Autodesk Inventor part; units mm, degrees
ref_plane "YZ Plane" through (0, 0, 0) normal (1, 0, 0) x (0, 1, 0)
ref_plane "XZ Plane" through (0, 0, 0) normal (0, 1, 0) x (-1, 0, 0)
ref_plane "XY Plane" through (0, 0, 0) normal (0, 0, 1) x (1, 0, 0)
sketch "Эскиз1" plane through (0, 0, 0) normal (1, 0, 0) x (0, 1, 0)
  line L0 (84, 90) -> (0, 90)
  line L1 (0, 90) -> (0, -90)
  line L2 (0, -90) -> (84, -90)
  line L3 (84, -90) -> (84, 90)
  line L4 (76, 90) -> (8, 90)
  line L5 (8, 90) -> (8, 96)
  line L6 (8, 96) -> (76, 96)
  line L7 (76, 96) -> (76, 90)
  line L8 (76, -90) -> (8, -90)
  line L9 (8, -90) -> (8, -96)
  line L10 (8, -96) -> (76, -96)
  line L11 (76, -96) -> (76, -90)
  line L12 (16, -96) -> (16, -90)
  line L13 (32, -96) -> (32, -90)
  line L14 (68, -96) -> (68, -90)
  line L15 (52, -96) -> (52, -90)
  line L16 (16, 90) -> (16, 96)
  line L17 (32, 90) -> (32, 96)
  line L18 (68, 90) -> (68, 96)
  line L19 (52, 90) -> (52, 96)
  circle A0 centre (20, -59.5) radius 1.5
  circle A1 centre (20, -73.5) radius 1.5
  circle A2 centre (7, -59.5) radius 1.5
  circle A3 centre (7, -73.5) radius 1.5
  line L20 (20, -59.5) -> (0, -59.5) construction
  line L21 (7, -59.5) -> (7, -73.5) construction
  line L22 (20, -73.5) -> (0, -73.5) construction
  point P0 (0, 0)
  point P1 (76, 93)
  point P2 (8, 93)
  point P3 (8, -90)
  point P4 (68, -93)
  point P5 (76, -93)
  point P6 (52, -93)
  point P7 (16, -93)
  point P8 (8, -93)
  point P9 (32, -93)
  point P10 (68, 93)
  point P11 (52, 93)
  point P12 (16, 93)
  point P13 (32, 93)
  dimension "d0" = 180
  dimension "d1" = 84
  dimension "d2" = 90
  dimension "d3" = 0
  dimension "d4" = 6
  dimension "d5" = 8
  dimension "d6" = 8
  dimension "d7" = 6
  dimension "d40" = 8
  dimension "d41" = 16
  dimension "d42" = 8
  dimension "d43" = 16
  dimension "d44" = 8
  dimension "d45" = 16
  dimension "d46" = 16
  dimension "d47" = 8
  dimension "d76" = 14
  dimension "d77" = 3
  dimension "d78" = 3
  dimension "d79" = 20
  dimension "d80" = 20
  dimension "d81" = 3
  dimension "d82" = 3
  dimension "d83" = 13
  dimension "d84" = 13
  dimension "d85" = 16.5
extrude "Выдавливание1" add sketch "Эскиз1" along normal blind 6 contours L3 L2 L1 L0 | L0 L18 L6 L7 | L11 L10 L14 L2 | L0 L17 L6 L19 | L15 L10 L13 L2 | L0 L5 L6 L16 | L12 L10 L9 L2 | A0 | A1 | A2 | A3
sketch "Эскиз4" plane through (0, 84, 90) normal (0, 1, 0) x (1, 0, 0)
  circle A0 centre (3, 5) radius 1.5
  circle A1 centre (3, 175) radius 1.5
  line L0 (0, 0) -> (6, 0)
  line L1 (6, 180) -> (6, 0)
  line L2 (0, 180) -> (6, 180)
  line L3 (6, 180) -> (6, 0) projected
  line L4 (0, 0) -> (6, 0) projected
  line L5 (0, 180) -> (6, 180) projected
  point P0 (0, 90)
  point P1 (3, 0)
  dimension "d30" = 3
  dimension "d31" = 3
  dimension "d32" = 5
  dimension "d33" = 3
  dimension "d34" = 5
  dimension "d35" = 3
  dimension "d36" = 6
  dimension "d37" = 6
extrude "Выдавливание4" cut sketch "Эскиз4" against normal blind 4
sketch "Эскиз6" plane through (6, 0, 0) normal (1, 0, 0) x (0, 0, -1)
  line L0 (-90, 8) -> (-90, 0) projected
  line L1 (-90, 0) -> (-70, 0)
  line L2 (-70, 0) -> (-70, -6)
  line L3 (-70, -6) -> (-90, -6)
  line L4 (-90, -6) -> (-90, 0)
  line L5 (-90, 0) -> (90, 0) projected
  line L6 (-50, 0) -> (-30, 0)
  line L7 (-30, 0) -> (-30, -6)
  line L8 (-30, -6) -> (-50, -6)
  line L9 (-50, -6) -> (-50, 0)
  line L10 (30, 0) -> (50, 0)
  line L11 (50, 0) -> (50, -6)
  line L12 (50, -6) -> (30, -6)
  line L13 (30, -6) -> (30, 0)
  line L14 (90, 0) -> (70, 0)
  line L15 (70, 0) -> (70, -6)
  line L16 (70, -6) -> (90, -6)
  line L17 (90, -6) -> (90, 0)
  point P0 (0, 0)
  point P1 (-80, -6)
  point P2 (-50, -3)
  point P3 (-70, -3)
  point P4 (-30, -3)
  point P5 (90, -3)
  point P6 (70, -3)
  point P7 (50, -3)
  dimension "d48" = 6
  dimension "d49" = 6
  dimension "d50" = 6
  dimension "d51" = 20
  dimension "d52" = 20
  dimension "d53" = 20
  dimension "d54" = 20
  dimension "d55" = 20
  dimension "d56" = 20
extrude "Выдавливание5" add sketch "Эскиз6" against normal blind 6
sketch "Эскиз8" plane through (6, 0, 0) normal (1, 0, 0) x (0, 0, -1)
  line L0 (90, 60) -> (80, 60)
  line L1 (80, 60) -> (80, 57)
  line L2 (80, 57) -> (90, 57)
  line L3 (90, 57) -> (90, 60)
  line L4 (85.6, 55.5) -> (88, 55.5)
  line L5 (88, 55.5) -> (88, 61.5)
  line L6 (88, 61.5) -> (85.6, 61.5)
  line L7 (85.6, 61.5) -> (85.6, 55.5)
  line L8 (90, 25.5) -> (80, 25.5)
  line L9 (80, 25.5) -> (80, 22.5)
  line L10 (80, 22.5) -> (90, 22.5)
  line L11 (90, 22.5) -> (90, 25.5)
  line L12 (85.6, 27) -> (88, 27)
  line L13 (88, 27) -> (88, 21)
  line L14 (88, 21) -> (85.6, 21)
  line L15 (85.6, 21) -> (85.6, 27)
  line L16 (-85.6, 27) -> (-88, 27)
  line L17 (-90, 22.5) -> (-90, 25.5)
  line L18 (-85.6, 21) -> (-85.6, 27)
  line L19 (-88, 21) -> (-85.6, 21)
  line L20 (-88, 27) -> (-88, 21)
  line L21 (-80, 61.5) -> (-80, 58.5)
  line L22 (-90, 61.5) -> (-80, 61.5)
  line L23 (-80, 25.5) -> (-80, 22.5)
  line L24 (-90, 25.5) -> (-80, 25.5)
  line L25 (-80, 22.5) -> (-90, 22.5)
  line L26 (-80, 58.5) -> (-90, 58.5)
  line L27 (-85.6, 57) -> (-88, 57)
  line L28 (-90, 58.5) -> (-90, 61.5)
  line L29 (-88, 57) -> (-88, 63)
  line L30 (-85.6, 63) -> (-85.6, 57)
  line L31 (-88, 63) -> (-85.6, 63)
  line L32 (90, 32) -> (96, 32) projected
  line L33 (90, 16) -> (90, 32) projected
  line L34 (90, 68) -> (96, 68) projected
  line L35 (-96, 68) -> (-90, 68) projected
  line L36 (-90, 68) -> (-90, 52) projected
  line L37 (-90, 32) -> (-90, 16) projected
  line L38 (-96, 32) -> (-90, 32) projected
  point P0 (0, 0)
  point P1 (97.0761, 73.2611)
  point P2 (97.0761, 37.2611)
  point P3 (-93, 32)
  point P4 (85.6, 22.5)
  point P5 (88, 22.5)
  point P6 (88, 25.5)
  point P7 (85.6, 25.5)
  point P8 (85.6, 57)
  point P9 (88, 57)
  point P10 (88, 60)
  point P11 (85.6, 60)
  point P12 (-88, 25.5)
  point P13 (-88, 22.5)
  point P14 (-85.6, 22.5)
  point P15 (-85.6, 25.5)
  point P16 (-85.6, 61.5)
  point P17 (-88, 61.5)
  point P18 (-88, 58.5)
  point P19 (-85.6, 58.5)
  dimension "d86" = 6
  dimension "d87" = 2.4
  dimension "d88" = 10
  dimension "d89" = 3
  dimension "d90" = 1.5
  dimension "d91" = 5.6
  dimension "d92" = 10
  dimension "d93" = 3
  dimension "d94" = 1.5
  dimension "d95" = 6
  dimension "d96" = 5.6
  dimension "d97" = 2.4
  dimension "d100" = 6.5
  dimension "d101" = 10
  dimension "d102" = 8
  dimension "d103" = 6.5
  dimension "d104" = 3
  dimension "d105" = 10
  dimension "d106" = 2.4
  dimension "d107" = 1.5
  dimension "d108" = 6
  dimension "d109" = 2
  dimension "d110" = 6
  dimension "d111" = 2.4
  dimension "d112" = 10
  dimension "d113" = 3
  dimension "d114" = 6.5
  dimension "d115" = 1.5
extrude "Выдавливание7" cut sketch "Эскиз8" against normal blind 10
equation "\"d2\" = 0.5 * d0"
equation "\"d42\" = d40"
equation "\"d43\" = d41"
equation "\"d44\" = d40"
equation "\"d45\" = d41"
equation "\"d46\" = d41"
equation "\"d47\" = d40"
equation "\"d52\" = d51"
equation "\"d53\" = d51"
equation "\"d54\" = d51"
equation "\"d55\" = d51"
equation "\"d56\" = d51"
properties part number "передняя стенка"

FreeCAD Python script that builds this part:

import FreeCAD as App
import Part
import Sketcher

V = App.Vector


def add_polygon(sketch, points):
    """Adds a closed chain of lines whose ends are joined by coincident constraints."""
    first, n = sketch.GeometryCount, len(points)
    for a, b in zip(points, points[1:] + points[:1]):
        sketch.addGeometry(Part.LineSegment(App.Vector(*a, 0), App.Vector(*b, 0)), False)
    for i in range(n):
        sketch.addConstraint(Sketcher.Constraint("Coincident", first + i, 2, first + (i + 1) % n, 1))

doc = App.newDocument("Part")
body = doc.addObject("PartDesign::Body", "Body")

# Sketch on YZ plane
sketch1 = doc.addObject("Sketcher::SketchObject", "Sketch")
body.addObject(sketch1)
sketch1.AttachmentSupport = (doc.YZ_Plane, [""])
sketch1.MapMode = "FlatFace"
add_polygon(sketch1, [(84, -90), (84, 90), (76, 90), (76, 96), (68, 96), (68, 90), (52, 90), (52, 96), (32, 96), (32, 90), (16, 90), (16, 96), (8, 96), (8, 90), (0, 90), (0, -90), (8, -90), (8, -96), (16, -96), (16, -90), (32, -90), (32, -96), (52, -96), (52, -90), (68, -90), (68, -96), (76, -96), (76, -90)])  # lines 0-27
sketch1.addConstraint([
    Sketcher.Constraint("Vertical", 0),
    Sketcher.Constraint("Horizontal", 1),
    Sketcher.Constraint("Vertical", 2),
    Sketcher.Constraint("Horizontal", 3),
    Sketcher.Constraint("Vertical", 4),
    Sketcher.Constraint("Horizontal", 5),
    Sketcher.Constraint("Vertical", 6),
    Sketcher.Constraint("Horizontal", 7),
    Sketcher.Constraint("Vertical", 8),
    Sketcher.Constraint("Horizontal", 9),
    Sketcher.Constraint("Vertical", 10),
    Sketcher.Constraint("Horizontal", 11),
    Sketcher.Constraint("Vertical", 12),
    Sketcher.Constraint("Horizontal", 13),
    Sketcher.Constraint("Vertical", 14),
    Sketcher.Constraint("Horizontal", 15),
    Sketcher.Constraint("Vertical", 16),
    Sketcher.Constraint("Horizontal", 17),
    Sketcher.Constraint("Vertical", 18),
    Sketcher.Constraint("Horizontal", 19),
    Sketcher.Constraint("Vertical", 20),
    Sketcher.Constraint("Horizontal", 21),
    Sketcher.Constraint("Vertical", 22),
    Sketcher.Constraint("Horizontal", 23),
    Sketcher.Constraint("Vertical", 24),
    Sketcher.Constraint("Horizontal", 25),
    Sketcher.Constraint("Vertical", 26),
    Sketcher.Constraint("Horizontal", 27),
    Sketcher.Constraint("Symmetric", 13, 2, 14, 2, -1, 1),
    Sketcher.Constraint("Symmetric", 11, 2, 16, 2, -1),
    Sketcher.Constraint("Symmetric", 9, 2, 18, 2, -1),
    Sketcher.Constraint("Symmetric", 7, 2, 20, 2, -1),
    Sketcher.Constraint("Symmetric", 5, 2, 22, 2, -1),
    Sketcher.Constraint("Symmetric", 3, 2, 24, 2, -1),
    Sketcher.Constraint("Symmetric", 1, 2, 26, 2, -1),
    Sketcher.Constraint("Horizontal", 1, 2, 4, 2),
    Sketcher.Constraint("Horizontal", 3, 2, 6, 2),
    Sketcher.Constraint("Horizontal", 5, 2, 8, 2),
    Sketcher.Constraint("Horizontal", 7, 2, 10, 2),
    Sketcher.Constraint("Horizontal", 9, 2, 12, 2),
    Sketcher.Constraint("Equal", 1, 3),
    Sketcher.Constraint("Equal", 5, 9),
    Sketcher.Constraint("Equal", 3, 11),
    Sketcher.Constraint("Equal", 11, 13),
    Sketcher.Constraint("DistanceX", 1, 2, 1, 1, 8.0),
    Sketcher.Constraint("DistanceX", 5, 2, 5, 1, 16.0),
    Sketcher.Constraint("DistanceX", 7, 2, 7, 1, 20.0),
    Sketcher.Constraint("DistanceY", 0, 1, 0, 2, 180.0),
    Sketcher.Constraint("DistanceY", 2, 1, 2, 2, 6.0),
])
pad1 = doc.addObject("PartDesign::Pad", "Pad")
body.addObject(pad1)
pad1.Profile = sketch1
pad1.Length = 6

# Sketch on XZ plane
sketch2 = doc.addObject("Sketcher::SketchObject", "Sketch001")
body.addObject(sketch2)
sketch2.AttachmentSupport = (doc.XZ_Plane, [""])
sketch2.MapMode = "FlatFace"
sketch2.AttachmentOffset = App.Placement(V(0, 0, -84), App.Rotation())
sketch2.addGeometry([
    Part.Circle(V(3, 85, 0), V(0, 0, 1), 1.5),
    Part.Circle(V(3, -85, 0), V(0, 0, 1), 1.5),
], False)
sketch2.addConstraint([
    Sketcher.Constraint("Equal", 0, 1),
    Sketcher.Constraint("Symmetric", 0, 3, 1, 3, -1),
    Sketcher.Constraint("Diameter", 0, 3.0),
    Sketcher.Constraint("DistanceX", -1, 1, 0, 3, 3.0),
    Sketcher.Constraint("DistanceY", -1, 1, 0, 3, 85.0),
])
pocket1 = doc.addObject("PartDesign::Pocket", "Pocket")
body.addObject(pocket1)
pocket1.Profile = sketch2
pocket1.Length = 4
pocket1.Reversed = True

# Sketch on YZ plane
sketch3 = doc.addObject("Sketcher::SketchObject", "Sketch002")
body.addObject(sketch3)
sketch3.AttachmentSupport = (doc.YZ_Plane, [""])
sketch3.MapMode = "FlatFace"
sketch3.AttachmentOffset = App.Placement(V(0, 0, 6), App.Rotation())
add_polygon(sketch3, [(0, -90), (0, -70), (-6, -70), (-6, -90)])  # lines 0-3
add_polygon(sketch3, [(0, -50), (0, -30), (-6, -30), (-6, -50)])  # lines 4-7
add_polygon(sketch3, [(0, 30), (0, 50), (-6, 50), (-6, 30)])  # lines 8-11
add_polygon(sketch3, [(0, 70), (0, 90), (-6, 90), (-6, 70)])  # lines 12-15
sketch3.addConstraint([
    Sketcher.Constraint("Vertical", 0),
    Sketcher.Constraint("Horizontal", 1),
    Sketcher.Constraint("Vertical", 2),
    Sketcher.Constraint("Horizontal", 3),
    Sketcher.Constraint("Vertical", 4),
    Sketcher.Constraint("Horizontal", 5),
    Sketcher.Constraint("Vertical", 6),
    Sketcher.Constraint("Horizontal", 7),
    Sketcher.Constraint("Vertical", 8),
    Sketcher.Constraint("Horizontal", 9),
    Sketcher.Constraint("Vertical", 10),
    Sketcher.Constraint("Horizontal", 11),
    Sketcher.Constraint("Vertical", 12),
    Sketcher.Constraint("Horizontal", 13),
    Sketcher.Constraint("Vertical", 14),
    Sketcher.Constraint("Horizontal", 15),
    Sketcher.Constraint("Symmetric", 7, 2, 8, 2, -1, 1),
    Sketcher.Constraint("Symmetric", 3, 2, 12, 2, -1, 1),
    Sketcher.Constraint("Symmetric", 5, 2, 10, 2, -1),
    Sketcher.Constraint("Symmetric", 1, 2, 14, 2, -1),
    Sketcher.Constraint("PointOnObject", 0, 2, -2),
    Sketcher.Constraint("PointOnObject", 4, 2, -2),
    Sketcher.Constraint("Vertical", 2, 2, 5, 2),
    Sketcher.Constraint("Equal", 2, 4),
    Sketcher.Constraint("DistanceX", 1, 2, 1, 1, 6.0),
    Sketcher.Constraint("DistanceY", 0, 1, 0, 2, 20.0),
    Sketcher.Constraint("DistanceY", 1, 2, 6, 2, 20.0),
    Sketcher.Constraint("DistanceY", 0, 2, -1, 1, 70.0),
])
pad2 = doc.addObject("PartDesign::Pad", "Pad001")
body.addObject(pad2)
pad2.Profile = sketch3
pad2.Length = 6
pad2.Reversed = True

# Sketch on YZ plane
sketch4 = doc.addObject("Sketcher::SketchObject", "Sketch003")
body.addObject(sketch4)
sketch4.AttachmentSupport = (doc.YZ_Plane, [""])
sketch4.MapMode = "FlatFace"
sketch4.AttachmentOffset = App.Placement(V(0, 0, 6), App.Rotation())
add_polygon(sketch4, [(57, -90), (60, -90), (60, -88), (61.5, -88), (61.5, -85.6), (60, -85.6), (60, -80), (57, -80), (57, -85.6), (55.5, -85.6), (55.5, -88), (57, -88)])  # lines 0-11
add_polygon(sketch4, [(22.5, -90), (25.5, -90), (25.5, -88), (27, -88), (27, -85.6), (25.5, -85.6), (25.5, -80), (22.5, -80), (22.5, -85.6), (21, -85.6), (21, -88), (22.5, -88)])  # lines 12-23
add_polygon(sketch4, [(25.5, 85.6), (27, 85.6), (27, 88), (25.5, 88), (25.5, 90), (22.5, 90), (22.5, 88), (21, 88), (21, 85.6), (22.5, 85.6), (22.5, 80), (25.5, 80)])  # lines 24-35
add_polygon(sketch4, [(58.5, 80), (61.5, 80), (61.5, 85.6), (63, 85.6), (63, 88), (61.5, 88), (61.5, 90), (58.5, 90), (58.5, 88), (57, 88), (57, 85.6), (58.5, 85.6)])  # lines 36-47
sketch4.addConstraint([
    Sketcher.Constraint("Horizontal", 0),
    Sketcher.Constraint("Vertical", 1),
    Sketcher.Constraint("Horizontal", 2),
    Sketcher.Constraint("Vertical", 3),
    Sketcher.Constraint("Horizontal", 4),
    Sketcher.Constraint("Vertical", 5),
    Sketcher.Constraint("Horizontal", 6),
    Sketcher.Constraint("Vertical", 7),
    Sketcher.Constraint("Horizontal", 8),
    Sketcher.Constraint("Vertical", 9),
    Sketcher.Constraint("Horizontal", 10),
    Sketcher.Constraint("Vertical", 11),
    Sketcher.Constraint("Horizontal", 12),
    Sketcher.Constraint("Vertical", 13),
    Sketcher.Constraint("Horizontal", 14),
    Sketcher.Constraint("Vertical", 15),
    Sketcher.Constraint("Horizontal", 16),
    Sketcher.Constraint("Vertical", 17),
    Sketcher.Constraint("Horizontal", 18),
    Sketcher.Constraint("Vertical", 19),
    Sketcher.Constraint("Horizontal", 20),
    Sketcher.Constraint("Vertical", 21),
    Sketcher.Constraint("Horizontal", 22),
    Sketcher.Constraint("Vertical", 23),
    Sketcher.Constraint("Horizontal", 24),
    Sketcher.Constraint("Vertical", 25),
    Sketcher.Constraint("Horizontal", 26),
    Sketcher.Constraint("Vertical", 27),
    Sketcher.Constraint("Horizontal", 28),
    Sketcher.Constraint("Vertical", 29),
    Sketcher.Constraint("Horizontal", 30),
    Sketcher.Constraint("Vertical", 31),
    Sketcher.Constraint("Horizontal", 32),
    Sketcher.Constraint("Vertical", 33),
    Sketcher.Constraint("Horizontal", 34),
    Sketcher.Constraint("Vertical", 35),
    Sketcher.Constraint("Horizontal", 36),
    Sketcher.Constraint("Vertical", 37),
    Sketcher.Constraint("Horizontal", 38),
    Sketcher.Constraint("Vertical", 39),
    Sketcher.Constraint("Horizontal", 40),
    Sketcher.Constraint("Vertical", 41),
    Sketcher.Constraint("Horizontal", 42),
    Sketcher.Constraint("Vertical", 43),
    Sketcher.Constraint("Horizontal", 44),
    Sketcher.Constraint("Vertical", 45),
    Sketcher.Constraint("Horizontal", 46),
    Sketcher.Constraint("Vertical", 47),
    Sketcher.Constraint("Symmetric", 15, 2, 24, 2, -1),
    Sketcher.Constraint("Symmetric", 13, 2, 26, 2, -1),
    Sketcher.Constraint("Symmetric", 23, 2, 28, 2, -1),
    Sketcher.Constraint("Symmetric", 21, 2, 30, 2, -1),
    Sketcher.Constraint("Symmetric", 19, 2, 32, 2, -1),
    Sketcher.Constraint("Symmetric", 17, 2, 34, 2, -1),
    Sketcher.Constraint("Symmetric", 3, 2, 37, 2, -1),
    Sketcher.Constraint("Symmetric", 2, 2, 40, 2, -1),
    Sketcher.Constraint("Symmetric", 10, 2, 44, 2, -1),
    Sketcher.Constraint("Symmetric", 7, 2, 45, 2, -1),
    Sketcher.Constraint("Horizontal", 4, 2, 7, 2),
    Sketcher.Constraint("Horizontal", 2, 2, 9, 2),
    Sketcher.Constraint("Horizontal", 11, 2, 12, 2),
    Sketcher.Constraint("Horizontal", 10, 2, 13, 2),
    Sketcher.Constraint("Horizontal", 8, 2, 15, 2),
    Sketcher.Constraint("Horizontal", 6, 2, 17, 2),
    Sketcher.Constraint("Horizontal", 16, 2, 19, 2),
    Sketcher.Constraint("Horizontal", 14, 2, 21, 2),
    Sketcher.Constraint("Horizontal", 34, 2, 36, 2),
    Sketcher.Constraint("Horizontal", 28, 2, 41, 2),
    Sketcher.Constraint("Vertical", 1, 2, 4, 2),
    Sketcher.Constraint("Vertical", 13, 2, 16, 2),
    Sketcher.Constraint("Vertical", 19, 2, 22, 2),
    Sketcher.Constraint("Vertical", 43, 2, 46, 2),
    Sketcher.Constraint("Equal", 4, 8),
    Sketcher.Constraint("Equal", 6, 12),
    Sketcher.Constraint("Equal", 10, 14),
    Sketcher.Constraint("Equal", 16, 20),
    Sketcher.Constraint("Equal", 34, 36),
    Sketcher.Constraint("Equal", 32, 38),
    Sketcher.Constraint("DistanceX", 0, 1, 0, 2, 3.0),
    Sketcher.Constraint("DistanceY", 1, 1, 1, 2, 2.0),
    Sketcher.Constraint("DistanceX", 2, 1, 2, 2, 1.5),
    Sketcher.Constraint("DistanceY", 3, 1, 3, 2, 2.4),
    Sketcher.Constraint("DistanceY", 5, 1, 5, 2, 5.6),
    Sketcher.Constraint("DistanceX", -1, 1, 0, 2, 60.0),
    Sketcher.Constraint("DistanceY", 0, 2, -1, 1, 90.0),
    Sketcher.Constraint("DistanceX", -1, 1, 14, 2, 27.0),
])
pocket2 = doc.addObject("PartDesign::Pocket", "Pocket001")
body.addObject(pocket2)
pocket2.Profile = sketch4
pocket2.Length = 10

doc.recompute()
